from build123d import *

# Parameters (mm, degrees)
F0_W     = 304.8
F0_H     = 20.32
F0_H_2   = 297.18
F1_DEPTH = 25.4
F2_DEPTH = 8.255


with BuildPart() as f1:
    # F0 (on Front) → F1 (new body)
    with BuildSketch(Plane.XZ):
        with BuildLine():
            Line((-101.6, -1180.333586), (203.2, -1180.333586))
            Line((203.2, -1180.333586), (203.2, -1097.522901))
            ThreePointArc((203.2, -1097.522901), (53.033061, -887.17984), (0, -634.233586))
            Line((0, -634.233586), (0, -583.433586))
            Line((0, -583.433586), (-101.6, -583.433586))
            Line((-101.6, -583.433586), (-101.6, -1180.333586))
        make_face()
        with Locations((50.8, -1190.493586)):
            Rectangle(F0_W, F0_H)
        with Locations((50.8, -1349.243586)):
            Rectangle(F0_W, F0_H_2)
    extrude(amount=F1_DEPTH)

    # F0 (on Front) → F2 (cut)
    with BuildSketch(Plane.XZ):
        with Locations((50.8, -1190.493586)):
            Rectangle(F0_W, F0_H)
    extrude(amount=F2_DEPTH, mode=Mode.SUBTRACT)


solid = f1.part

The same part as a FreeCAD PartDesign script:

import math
import FreeCAD as App
import Part
import Sketcher
Q = App.Units.Quantity

doc = App.newDocument("Part")
body = doc.addObject("PartDesign::Body", "Body")

# Sketch on XZ plane
sketch1 = body.newObject("Sketcher::SketchObject", "Sketch")
sketch1.AttachmentSupport = (doc.getObject("XZ_Plane"), [""])
sketch1.MapMode = "FlatFace"
sketch1.addGeometry(Part.ArcOfCircle(Part.Circle(App.Vector(629.742197, -634.233587, 0), App.Vector(0, 0, 1), 629.742197), math.radians(180), math.radians(227.364784)), False)
sketch1.addGeometry(Part.LineSegment(App.Vector(0, -634.233586, 0), App.Vector(0, -583.433586, 0)), False)
sketch1.addGeometry(Part.LineSegment(App.Vector(0, -583.433586, 0), App.Vector(-101.6, -583.433586, 0)), False)
sketch1.addGeometry(Part.LineSegment(App.Vector(-101.6, -583.433586, 0), App.Vector(-101.6, -1497.833586, 0)), False)
sketch1.addGeometry(Part.LineSegment(App.Vector(-101.6, -1497.833586, 0), App.Vector(203.2, -1497.833586, 0)), False)
sketch1.addGeometry(Part.LineSegment(App.Vector(203.2, -1497.833586, 0), App.Vector(203.2, -1097.522901, 0)), False)
sketch1.addConstraint(Sketcher.Constraint("Tangent", 0, 1, 1, 1))
sketch1.addConstraint(Sketcher.Constraint("Coincident", 1, 2, 2, 1))
sketch1.addConstraint(Sketcher.Constraint("Coincident", 2, 2, 3, 1))
sketch1.addConstraint(Sketcher.Constraint("Coincident", 3, 2, 4, 1))
sketch1.addConstraint(Sketcher.Constraint("Coincident", 4, 2, 5, 1))
sketch1.addConstraint(Sketcher.Constraint("Coincident", 5, 2, 0, 2))
sketch1.addConstraint(Sketcher.Constraint("Vertical", 1))
sketch1.addConstraint(Sketcher.Constraint("Horizontal", 2))
sketch1.addConstraint(Sketcher.Constraint("Vertical", 3))
sketch1.addConstraint(Sketcher.Constraint("Horizontal", 4))
sketch1.addConstraint(Sketcher.Constraint("Vertical", 5))
sketch1.addConstraint(Sketcher.Constraint("PointOnObject", 0, 1, -2))
sketch1.addConstraint(Sketcher.Constraint("DistanceX", 2, 2, 2, 1, Q("4 in")))
sketch1.addConstraint(Sketcher.Constraint("DistanceX", 4, 1, 4, 2, Q("12 in")))
sketch1.addConstraint(Sketcher.Constraint("DistanceY", 1, 1, 1, 2, Q("2 in")))
sketch1.addConstraint(Sketcher.Constraint("DistanceY", 3, 2, 3, 1, Q("36 in")))
sketch1.addConstraint(Sketcher.Constraint("Radius", 0, Q("24.7929999 in")))
sketch1.addConstraint(Sketcher.Constraint("DistanceY", 5, 2, -1, 1, Q("1097.522901 mm")))
pad1 = body.newObject("PartDesign::Pad", "Pad")
pad1.Profile = sketch1
pad1.Length = Q("1 in")

# Sketch on XZ plane
sketch2 = body.newObject("Sketcher::SketchObject", "Sketch001")
sketch2.AttachmentSupport = (doc.getObject("XZ_Plane"), [""])
sketch2.MapMode = "FlatFace"
sketch2.addGeometry(Part.LineSegment(App.Vector(-101.6, -1180.333586, 0), App.Vector(-101.6, -1200.653586, 0)), False)
sketch2.addGeometry(Part.LineSegment(App.Vector(-101.6, -1200.653586, 0), App.Vector(203.2, -1200.653586, 0)), False)
sketch2.addGeometry(Part.LineSegment(App.Vector(203.2, -1200.653586, 0), App.Vector(203.2, -1180.333586, 0)), False)
sketch2.addGeometry(Part.LineSegment(App.Vector(203.2, -1180.333586, 0), App.Vector(-101.6, -1180.333586, 0)), False)
sketch2.addConstraint(Sketcher.Constraint("Coincident", 0, 2, 1, 1))
sketch2.addConstraint(Sketcher.Constraint("Coincident", 1, 2, 2, 1))
sketch2.addConstraint(Sketcher.Constraint("Coincident", 2, 2, 3, 1))
sketch2.addConstraint(Sketcher.Constraint("Coincident", 3, 2, 0, 1))
sketch2.addConstraint(Sketcher.Constraint("Vertical", 0))
sketch2.addConstraint(Sketcher.Constraint("Horizontal", 1))
sketch2.addConstraint(Sketcher.Constraint("Vertical", 2))
sketch2.addConstraint(Sketcher.Constraint("Horizontal", 3))
sketch2.addConstraint(Sketcher.Constraint("DistanceX", 1, 1, 1, 2, Q("12 in")))
sketch2.addConstraint(Sketcher.Constraint("DistanceY", 0, 2, 0, 1, Q("0.8 in")))
sketch2.addConstraint(Sketcher.Constraint("DistanceX", 0, 2, -1, 1, Q("4 in")))
sketch2.addConstraint(Sketcher.Constraint("DistanceY", 0, 2, -1, 1, Q("1200.653586 mm")))
pocket1 = body.newObject("PartDesign::Pocket", "Pocket")
pocket1.Profile = sketch2
pocket1.Length = Q("0.325 in")
pocket1.Reversed = True

doc.recompute()
